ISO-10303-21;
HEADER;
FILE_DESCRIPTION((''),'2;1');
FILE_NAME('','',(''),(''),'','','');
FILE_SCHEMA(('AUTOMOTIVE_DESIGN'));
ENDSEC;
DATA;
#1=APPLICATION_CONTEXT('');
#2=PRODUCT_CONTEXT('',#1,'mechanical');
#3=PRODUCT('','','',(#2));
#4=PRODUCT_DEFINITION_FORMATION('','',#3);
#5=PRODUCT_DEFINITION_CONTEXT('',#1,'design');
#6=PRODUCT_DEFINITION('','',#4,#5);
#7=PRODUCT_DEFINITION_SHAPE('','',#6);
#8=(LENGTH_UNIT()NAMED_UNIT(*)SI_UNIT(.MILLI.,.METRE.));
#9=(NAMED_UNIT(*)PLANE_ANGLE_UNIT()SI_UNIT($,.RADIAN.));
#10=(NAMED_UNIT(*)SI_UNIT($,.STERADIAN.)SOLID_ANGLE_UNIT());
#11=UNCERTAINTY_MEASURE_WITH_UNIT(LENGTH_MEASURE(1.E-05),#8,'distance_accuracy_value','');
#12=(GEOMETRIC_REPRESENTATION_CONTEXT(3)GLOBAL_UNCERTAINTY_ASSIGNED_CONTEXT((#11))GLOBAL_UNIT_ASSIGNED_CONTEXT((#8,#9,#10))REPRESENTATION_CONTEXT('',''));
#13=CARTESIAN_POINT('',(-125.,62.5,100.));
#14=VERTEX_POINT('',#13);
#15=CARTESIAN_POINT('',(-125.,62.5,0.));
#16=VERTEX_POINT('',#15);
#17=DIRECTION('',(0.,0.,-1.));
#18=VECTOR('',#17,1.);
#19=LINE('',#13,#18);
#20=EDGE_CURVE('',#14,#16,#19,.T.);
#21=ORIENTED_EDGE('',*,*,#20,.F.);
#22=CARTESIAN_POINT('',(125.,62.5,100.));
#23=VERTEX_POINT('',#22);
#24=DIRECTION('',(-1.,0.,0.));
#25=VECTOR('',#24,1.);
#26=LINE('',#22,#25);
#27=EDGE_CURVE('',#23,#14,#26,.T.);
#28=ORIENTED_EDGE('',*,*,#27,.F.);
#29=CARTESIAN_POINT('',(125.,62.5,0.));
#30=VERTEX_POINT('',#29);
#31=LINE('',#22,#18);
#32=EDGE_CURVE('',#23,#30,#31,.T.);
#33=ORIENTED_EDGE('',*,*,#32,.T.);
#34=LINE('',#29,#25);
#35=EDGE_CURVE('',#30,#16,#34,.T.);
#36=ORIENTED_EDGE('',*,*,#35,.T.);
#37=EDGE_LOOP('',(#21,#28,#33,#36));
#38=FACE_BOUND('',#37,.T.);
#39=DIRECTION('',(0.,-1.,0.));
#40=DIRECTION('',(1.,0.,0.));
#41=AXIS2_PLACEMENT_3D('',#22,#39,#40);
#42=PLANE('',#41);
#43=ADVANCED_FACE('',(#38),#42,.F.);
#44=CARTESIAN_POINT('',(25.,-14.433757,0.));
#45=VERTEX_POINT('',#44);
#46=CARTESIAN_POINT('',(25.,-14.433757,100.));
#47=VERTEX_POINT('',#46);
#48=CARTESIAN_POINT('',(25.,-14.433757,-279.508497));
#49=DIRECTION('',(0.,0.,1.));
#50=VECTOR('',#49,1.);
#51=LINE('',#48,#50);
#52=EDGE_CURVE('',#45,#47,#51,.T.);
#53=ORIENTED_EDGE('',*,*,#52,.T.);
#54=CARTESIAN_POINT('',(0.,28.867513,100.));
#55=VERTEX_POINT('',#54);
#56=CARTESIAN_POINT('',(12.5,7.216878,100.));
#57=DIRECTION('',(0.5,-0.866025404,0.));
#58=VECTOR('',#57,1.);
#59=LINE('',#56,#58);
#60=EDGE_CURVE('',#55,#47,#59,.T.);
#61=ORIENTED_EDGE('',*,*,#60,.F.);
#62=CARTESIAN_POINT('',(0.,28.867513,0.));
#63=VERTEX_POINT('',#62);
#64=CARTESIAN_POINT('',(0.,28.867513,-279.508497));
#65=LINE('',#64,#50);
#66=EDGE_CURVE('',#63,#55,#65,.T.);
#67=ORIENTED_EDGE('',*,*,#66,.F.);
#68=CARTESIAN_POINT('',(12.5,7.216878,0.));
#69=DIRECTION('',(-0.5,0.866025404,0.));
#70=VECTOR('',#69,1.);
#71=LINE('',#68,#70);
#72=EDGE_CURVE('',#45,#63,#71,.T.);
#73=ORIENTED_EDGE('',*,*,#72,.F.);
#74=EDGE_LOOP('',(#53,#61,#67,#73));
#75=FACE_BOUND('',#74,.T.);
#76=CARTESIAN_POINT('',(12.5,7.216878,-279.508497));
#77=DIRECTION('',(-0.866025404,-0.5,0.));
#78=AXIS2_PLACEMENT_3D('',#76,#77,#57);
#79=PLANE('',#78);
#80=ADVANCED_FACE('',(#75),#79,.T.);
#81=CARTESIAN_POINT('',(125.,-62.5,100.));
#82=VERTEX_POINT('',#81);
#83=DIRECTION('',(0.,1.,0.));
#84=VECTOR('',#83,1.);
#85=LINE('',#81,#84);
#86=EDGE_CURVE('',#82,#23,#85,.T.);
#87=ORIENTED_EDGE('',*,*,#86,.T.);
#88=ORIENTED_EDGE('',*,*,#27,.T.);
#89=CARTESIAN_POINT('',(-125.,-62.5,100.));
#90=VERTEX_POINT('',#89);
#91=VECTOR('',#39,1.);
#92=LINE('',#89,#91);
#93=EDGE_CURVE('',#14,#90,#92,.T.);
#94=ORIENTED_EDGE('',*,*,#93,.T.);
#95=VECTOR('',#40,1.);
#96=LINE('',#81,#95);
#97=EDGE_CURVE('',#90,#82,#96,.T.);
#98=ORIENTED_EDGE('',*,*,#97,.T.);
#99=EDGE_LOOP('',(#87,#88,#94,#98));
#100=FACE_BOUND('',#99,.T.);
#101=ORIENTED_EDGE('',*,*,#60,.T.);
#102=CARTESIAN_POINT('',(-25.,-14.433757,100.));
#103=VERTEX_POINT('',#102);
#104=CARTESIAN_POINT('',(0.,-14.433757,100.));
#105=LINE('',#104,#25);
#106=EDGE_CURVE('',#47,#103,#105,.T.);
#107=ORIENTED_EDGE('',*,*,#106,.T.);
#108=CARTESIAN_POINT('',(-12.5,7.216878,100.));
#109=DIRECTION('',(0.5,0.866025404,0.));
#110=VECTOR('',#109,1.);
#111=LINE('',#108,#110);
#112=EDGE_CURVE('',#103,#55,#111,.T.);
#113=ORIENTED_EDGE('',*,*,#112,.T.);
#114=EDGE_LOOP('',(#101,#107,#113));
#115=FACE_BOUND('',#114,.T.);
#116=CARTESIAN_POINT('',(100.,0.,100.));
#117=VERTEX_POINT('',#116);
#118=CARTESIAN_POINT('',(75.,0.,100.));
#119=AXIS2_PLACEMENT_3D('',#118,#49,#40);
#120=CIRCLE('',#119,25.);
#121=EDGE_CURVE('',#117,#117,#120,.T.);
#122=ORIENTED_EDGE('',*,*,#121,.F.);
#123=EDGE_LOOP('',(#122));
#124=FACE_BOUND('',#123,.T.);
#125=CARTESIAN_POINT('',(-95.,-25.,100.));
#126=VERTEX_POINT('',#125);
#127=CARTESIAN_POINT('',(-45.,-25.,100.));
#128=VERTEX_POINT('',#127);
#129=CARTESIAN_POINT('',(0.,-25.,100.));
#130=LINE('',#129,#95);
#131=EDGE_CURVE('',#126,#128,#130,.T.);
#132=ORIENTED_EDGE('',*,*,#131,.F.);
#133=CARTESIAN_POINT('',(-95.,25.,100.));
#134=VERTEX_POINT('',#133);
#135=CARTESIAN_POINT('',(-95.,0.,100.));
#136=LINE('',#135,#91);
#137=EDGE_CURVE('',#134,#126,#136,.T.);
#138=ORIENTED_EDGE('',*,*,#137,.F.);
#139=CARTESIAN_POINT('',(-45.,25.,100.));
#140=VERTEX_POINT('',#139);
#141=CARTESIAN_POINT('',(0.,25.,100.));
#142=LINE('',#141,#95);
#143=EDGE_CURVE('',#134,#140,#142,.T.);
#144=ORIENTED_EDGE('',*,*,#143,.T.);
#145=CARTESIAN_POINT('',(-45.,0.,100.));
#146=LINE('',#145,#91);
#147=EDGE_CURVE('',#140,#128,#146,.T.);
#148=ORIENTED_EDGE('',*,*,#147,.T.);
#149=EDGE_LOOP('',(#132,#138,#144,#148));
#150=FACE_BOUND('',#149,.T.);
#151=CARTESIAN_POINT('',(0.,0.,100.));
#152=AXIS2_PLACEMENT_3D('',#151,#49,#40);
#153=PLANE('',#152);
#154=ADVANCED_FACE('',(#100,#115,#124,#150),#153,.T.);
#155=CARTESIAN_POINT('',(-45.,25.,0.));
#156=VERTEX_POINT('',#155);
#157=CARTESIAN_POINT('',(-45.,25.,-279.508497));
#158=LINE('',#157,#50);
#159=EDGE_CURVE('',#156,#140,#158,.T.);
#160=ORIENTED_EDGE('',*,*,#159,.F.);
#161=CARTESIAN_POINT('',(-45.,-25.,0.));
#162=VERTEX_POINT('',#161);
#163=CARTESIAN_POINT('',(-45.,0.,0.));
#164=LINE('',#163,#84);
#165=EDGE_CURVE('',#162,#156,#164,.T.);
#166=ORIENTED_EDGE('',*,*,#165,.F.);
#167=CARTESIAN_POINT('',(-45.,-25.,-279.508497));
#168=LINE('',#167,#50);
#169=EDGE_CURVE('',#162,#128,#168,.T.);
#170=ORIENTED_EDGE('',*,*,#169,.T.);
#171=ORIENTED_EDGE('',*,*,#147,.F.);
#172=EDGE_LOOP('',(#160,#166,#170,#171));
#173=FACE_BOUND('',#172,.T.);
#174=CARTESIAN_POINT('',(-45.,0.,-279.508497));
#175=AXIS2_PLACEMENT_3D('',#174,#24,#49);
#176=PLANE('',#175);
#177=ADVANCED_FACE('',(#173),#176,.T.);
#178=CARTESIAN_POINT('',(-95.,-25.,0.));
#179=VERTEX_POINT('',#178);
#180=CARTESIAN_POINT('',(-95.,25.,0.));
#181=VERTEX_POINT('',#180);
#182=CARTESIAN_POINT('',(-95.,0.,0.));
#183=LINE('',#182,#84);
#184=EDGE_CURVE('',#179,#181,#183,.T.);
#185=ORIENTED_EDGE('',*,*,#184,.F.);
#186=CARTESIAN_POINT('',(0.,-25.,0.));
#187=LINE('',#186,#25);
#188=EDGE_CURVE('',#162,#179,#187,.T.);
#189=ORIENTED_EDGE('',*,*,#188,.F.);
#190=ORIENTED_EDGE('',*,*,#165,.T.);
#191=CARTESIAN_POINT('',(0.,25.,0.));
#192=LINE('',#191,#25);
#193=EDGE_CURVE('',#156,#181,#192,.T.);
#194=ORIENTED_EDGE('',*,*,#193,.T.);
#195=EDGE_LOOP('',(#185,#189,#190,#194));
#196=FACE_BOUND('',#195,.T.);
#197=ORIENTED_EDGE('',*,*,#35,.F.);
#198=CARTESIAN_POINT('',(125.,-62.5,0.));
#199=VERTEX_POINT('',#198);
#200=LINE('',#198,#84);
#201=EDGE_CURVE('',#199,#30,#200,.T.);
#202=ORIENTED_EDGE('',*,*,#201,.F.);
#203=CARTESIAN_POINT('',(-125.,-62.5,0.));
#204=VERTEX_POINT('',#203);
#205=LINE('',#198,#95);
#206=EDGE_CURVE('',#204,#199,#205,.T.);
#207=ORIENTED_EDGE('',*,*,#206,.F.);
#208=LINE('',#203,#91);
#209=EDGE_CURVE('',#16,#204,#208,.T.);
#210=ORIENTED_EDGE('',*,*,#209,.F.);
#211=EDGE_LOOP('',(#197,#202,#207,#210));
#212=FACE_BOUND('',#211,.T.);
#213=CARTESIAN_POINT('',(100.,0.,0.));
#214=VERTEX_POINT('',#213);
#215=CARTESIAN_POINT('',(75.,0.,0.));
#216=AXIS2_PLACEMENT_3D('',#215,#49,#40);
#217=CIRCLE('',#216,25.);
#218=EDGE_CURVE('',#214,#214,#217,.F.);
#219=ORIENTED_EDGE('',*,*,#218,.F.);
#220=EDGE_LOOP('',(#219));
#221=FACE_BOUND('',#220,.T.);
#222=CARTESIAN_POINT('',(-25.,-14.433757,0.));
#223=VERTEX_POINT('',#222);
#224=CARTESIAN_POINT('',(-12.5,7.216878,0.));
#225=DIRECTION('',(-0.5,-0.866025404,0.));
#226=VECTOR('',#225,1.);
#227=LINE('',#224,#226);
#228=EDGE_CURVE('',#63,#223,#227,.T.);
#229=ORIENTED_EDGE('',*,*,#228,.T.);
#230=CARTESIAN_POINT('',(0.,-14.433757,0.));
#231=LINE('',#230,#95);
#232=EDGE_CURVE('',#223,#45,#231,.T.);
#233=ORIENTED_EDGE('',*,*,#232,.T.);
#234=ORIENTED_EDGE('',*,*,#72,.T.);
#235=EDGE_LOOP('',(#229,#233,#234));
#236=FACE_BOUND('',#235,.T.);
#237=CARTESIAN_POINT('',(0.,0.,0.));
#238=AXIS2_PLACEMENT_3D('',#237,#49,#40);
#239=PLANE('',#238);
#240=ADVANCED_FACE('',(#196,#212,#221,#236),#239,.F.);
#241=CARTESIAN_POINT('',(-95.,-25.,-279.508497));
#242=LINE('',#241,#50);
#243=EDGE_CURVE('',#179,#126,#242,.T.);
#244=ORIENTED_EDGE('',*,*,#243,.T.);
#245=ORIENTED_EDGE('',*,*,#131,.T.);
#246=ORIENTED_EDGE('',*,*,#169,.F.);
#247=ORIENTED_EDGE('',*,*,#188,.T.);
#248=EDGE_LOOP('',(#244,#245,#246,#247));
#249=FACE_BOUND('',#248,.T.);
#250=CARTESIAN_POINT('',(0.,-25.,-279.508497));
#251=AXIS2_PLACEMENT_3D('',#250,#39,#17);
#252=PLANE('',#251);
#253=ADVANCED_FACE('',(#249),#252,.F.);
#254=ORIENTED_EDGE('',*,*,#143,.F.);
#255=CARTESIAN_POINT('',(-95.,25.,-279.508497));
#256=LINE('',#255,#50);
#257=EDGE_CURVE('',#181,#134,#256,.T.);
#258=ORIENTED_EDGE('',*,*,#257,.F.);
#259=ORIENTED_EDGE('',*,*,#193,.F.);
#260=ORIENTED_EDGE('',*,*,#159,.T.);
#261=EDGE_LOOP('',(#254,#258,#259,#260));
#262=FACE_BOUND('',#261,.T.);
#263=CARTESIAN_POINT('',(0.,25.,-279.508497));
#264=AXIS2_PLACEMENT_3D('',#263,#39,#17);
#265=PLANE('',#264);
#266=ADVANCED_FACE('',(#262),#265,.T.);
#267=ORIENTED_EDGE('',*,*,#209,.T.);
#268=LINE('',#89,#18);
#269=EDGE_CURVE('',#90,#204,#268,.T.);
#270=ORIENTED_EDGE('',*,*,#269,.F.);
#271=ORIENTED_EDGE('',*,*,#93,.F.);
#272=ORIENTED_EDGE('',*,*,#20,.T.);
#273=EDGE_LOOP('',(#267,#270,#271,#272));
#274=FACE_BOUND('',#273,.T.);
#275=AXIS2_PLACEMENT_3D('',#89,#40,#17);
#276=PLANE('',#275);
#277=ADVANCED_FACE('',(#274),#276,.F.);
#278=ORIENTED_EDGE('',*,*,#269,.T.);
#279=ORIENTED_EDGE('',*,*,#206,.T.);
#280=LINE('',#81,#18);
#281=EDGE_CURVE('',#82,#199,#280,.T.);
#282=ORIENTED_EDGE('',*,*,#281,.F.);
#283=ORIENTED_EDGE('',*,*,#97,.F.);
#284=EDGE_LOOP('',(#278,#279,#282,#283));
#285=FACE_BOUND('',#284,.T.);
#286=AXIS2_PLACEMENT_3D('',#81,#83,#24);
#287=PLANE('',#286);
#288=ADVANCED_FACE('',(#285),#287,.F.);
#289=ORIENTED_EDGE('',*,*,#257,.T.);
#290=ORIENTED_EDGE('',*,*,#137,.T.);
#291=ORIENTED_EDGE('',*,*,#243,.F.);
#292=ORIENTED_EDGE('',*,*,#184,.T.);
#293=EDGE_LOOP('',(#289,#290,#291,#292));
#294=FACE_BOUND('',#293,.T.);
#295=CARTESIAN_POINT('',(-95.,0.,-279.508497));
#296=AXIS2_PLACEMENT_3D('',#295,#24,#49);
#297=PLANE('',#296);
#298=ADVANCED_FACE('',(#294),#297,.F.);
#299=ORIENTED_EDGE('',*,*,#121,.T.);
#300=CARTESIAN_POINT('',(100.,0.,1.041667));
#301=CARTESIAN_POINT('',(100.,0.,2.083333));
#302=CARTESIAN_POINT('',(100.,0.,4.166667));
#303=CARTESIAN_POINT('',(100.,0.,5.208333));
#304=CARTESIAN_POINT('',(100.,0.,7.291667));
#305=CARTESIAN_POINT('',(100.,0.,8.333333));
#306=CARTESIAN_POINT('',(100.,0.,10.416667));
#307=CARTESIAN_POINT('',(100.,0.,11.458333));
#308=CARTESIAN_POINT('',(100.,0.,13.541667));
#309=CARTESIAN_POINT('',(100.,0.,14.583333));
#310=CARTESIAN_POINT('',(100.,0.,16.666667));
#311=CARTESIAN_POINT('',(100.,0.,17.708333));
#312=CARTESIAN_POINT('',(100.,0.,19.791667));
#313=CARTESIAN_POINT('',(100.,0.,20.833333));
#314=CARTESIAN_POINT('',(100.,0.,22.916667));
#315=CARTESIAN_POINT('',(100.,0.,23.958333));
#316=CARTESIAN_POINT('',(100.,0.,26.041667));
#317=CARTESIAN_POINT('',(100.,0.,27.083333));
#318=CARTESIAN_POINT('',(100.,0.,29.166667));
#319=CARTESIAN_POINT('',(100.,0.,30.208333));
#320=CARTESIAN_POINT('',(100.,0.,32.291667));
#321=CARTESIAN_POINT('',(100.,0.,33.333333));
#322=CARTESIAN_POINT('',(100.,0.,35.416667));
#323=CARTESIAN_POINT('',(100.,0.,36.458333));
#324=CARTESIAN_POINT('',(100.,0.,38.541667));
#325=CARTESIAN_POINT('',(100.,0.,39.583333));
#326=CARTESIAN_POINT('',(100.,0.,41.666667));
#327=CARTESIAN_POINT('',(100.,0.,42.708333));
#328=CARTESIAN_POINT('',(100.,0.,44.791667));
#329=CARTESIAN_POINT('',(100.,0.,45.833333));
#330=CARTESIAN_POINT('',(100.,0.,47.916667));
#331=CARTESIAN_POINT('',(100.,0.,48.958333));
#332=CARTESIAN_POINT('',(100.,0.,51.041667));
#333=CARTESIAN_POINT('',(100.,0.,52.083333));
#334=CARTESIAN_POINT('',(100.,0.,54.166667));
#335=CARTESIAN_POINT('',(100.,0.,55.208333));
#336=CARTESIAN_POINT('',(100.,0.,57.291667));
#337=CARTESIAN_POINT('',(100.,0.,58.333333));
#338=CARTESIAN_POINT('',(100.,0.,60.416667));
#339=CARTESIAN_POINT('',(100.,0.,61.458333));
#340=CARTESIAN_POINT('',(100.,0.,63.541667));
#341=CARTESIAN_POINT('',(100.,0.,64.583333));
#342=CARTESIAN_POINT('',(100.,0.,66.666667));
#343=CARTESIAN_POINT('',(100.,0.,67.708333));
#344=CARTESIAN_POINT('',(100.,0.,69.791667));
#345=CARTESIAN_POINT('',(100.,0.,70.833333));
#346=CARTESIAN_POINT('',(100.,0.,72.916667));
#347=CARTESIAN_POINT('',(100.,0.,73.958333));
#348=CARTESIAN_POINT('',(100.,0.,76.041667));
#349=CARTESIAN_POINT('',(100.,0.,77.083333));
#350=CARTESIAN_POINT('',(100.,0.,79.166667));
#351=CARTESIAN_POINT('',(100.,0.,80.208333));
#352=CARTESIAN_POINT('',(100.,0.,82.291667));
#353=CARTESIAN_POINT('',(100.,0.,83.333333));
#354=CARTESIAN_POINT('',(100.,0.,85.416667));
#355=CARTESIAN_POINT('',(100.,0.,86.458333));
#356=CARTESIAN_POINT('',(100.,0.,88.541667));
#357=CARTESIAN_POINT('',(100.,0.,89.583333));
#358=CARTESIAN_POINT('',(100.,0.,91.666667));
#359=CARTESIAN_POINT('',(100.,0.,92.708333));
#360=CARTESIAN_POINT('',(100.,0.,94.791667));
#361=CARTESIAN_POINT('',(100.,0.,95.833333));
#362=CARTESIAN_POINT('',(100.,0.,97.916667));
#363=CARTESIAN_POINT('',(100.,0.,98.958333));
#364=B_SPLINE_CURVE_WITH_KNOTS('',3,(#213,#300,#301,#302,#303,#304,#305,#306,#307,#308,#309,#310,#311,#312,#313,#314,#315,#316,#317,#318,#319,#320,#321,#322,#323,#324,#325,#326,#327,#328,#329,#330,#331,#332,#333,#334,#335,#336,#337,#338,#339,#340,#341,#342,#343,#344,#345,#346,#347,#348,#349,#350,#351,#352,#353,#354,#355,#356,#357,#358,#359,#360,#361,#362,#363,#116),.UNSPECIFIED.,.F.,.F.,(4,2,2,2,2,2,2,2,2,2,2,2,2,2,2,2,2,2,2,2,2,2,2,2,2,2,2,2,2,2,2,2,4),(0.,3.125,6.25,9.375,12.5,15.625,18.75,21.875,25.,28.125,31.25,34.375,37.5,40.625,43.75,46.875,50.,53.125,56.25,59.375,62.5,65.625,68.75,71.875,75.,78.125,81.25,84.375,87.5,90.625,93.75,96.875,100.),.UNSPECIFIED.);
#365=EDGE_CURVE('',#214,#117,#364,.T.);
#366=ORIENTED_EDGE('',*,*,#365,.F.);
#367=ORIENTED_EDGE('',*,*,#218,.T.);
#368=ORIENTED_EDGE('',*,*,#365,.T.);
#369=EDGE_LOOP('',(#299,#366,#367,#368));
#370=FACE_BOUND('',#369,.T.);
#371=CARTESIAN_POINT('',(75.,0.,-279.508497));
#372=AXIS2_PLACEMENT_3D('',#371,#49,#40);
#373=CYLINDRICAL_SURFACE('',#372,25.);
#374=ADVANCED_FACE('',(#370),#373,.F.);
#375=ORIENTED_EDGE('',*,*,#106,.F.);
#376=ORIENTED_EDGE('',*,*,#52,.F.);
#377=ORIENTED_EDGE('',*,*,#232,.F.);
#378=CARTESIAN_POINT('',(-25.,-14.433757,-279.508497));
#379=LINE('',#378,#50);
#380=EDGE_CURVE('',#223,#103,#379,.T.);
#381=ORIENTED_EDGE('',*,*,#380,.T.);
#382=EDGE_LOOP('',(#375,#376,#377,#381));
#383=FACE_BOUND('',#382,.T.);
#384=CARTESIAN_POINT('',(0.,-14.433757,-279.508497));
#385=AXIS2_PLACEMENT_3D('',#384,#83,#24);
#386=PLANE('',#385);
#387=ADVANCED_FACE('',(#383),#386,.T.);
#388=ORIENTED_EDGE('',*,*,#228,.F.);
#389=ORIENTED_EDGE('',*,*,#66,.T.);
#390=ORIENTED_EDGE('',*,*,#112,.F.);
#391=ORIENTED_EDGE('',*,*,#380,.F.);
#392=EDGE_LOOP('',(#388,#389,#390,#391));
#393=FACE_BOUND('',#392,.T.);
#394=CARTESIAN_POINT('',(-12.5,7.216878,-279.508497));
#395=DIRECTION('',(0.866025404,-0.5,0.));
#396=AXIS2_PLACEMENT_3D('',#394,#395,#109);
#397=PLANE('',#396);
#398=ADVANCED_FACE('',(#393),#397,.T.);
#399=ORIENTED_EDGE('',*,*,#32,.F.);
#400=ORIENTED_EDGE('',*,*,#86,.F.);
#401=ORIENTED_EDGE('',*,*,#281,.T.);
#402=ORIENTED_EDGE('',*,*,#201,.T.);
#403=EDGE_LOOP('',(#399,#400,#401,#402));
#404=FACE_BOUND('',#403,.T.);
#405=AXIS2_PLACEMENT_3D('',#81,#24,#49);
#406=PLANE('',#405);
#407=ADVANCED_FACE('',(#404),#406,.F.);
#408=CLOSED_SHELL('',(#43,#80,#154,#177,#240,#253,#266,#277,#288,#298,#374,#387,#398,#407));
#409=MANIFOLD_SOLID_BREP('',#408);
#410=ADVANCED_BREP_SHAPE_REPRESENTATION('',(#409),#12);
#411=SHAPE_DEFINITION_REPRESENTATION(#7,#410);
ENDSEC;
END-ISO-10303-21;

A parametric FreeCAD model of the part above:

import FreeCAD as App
import Part
import Sketcher
from FreeCAD import Vector
Q = App.Units.Quantity


def add_polygon(sketch, points):
    """Adds a closed chain of lines whose ends are joined by coincident constraints."""
    first, n = sketch.GeometryCount, len(points)
    for a, b in zip(points, points[1:] + points[:1]):
        sketch.addGeometry(Part.LineSegment(App.Vector(*a, 0), App.Vector(*b, 0)), False)
    for i in range(n):
        sketch.addConstraint(Sketcher.Constraint("Coincident", first + i, 2, first + (i + 1) % n, 1))

doc = App.newDocument("Part")
params = doc.addObject("Spreadsheet::Sheet", "Params")
for row, (alias, value) in enumerate([
    ("sketch1_width", "250 mm"),
    ("sketch1_width2", "230 mm"),
    ("sketch1_height", "125 mm"),
    ("sketch1_height2", "115 mm"),
    ("pad1_length", "100 mm"),
    ("sketch2_diameter", "50 mm"),
    ("sketch2_width", "250 mm"),
    ("sketch2_width2", "50 mm"),
    ("sketch2_height", "125 mm"),
    ("pad2_length", "100 mm"),
], start=1):
    params.set(f"A{row}", alias)
    params.set(f"B{row}", "=" + value)
    params.setAlias(f"B{row}", alias)

body = doc.addObject("PartDesign::Body", "Body")

# Sketch on XY plane
sketch1 = body.newObject("Sketcher::SketchObject", "Sketch")
sketch1.AttachmentSupport = (doc.getObject("XY_Plane"), [""])
sketch1.MapMode = "FlatFace"
add_polygon(sketch1, [(-125, 62), (-125, -62), (125, -62), (125, 62)])  # lines 0-3
add_polygon(sketch1, [(115, -58), (-115, -58), (-115, 58), (115, 58)])  # lines 4-7
sketch1.addConstraint([
    Sketcher.Constraint("Vertical", 0),
    Sketcher.Constraint("Horizontal", 1),
    Sketcher.Constraint("Vertical", 2),
    Sketcher.Constraint("Horizontal", 3),
    Sketcher.Constraint("Horizontal", 4),
    Sketcher.Constraint("Vertical", 5),
    Sketcher.Constraint("Horizontal", 6),
    Sketcher.Constraint("Vertical", 7),
    Sketcher.Constraint("Symmetric", 0, 2, 2, 2, -1, 1),
    Sketcher.Constraint("Symmetric", 4, 2, 6, 2, -1, 1),
    Sketcher.Constraint("DistanceX", 1, 1, 1, 2, 250.0),
    Sketcher.Constraint("DistanceX", 4, 2, 4, 1, 230.0),
    Sketcher.Constraint("DistanceY", 0, 2, 0, 1, 125.0),
    Sketcher.Constraint("DistanceY", 5, 1, 5, 2, 115.0),
])
sketch1.setExpression("Constraints[18]", "Params.sketch1_width")
sketch1.setExpression("Constraints[19]", "Params.sketch1_width2")
sketch1.setExpression("Constraints[20]", "Params.sketch1_height")
sketch1.setExpression("Constraints[21]", "Params.sketch1_height2")
pad1 = body.newObject("PartDesign::Pad", "Pad")
pad1.Profile = sketch1
pad1.setExpression("Length", "Params.pad1_length")

# Sketch on XY plane
sketch2 = body.newObject("Sketcher::SketchObject", "Sketch001")
sketch2.AttachmentSupport = (doc.getObject("XY_Plane"), [""])
sketch2.MapMode = "FlatFace"
sketch2.AttachmentOffset = App.Placement(Vector(0, 0, 100), App.Rotation())
add_polygon(sketch2, [(-125, 62), (-125, -62), (125, -62), (125, 62)])  # lines 0-3
sketch2.addGeometry(Part.Circle(Vector(75, 0, 0), Vector(0, 0, 1), 25), False)  # 4
add_polygon(sketch2, [(0, 29), (25, -14), (-25, -14)])  # lines 5-7
add_polygon(sketch2, [(-45, -25), (-95, -25), (-95, 25), (-45, 25)])  # lines 8-11
sketch2.addConstraint([
    Sketcher.Constraint("Vertical", 0),
    Sketcher.Constraint("Horizontal", 1),
    Sketcher.Constraint("Vertical", 2),
    Sketcher.Constraint("Horizontal", 3),
    Sketcher.Constraint("Horizontal", 6),
    Sketcher.Constraint("Horizontal", 8),
    Sketcher.Constraint("Vertical", 9),
    Sketcher.Constraint("Horizontal", 10),
    Sketcher.Constraint("Vertical", 11),
    Sketcher.Constraint("Symmetric", 0, 2, 2, 2, -1, 1),
    Sketcher.Constraint("PointOnObject", 4, 3, -1),
    Sketcher.Constraint("PointOnObject", 7, 2, -2),
    Sketcher.Constraint("Equal", 6, 8),
    Sketcher.Constraint("Equal", 10, 9),
    Sketcher.Constraint("Equal", 5, 7),
    Sketcher.Constraint("Diameter", 4, 50.0),
    Sketcher.Constraint("DistanceX", 1, 1, 1, 2, 250.0),
    Sketcher.Constraint("DistanceX", 6, 2, 6, 1, 50.0),
    Sketcher.Constraint("DistanceY", 0, 2, 0, 1, 125.0),
    Sketcher.Constraint("Angle", 5, Q("-60 deg")),
    Sketcher.Constraint("DistanceX", -1, 1, 4, 3, 75.0),
    Sketcher.Constraint("DistanceX", 8, 2, -1, 1, 95.0),
    Sketcher.Constraint("DistanceY", 8, 2, -1, 1, 25.0),
    Sketcher.Constraint("DistanceY", 5, 2, -1, 1, 14.433757),
])
sketch2.setExpression("Constraints[26]", "Params.sketch2_diameter")
sketch2.setExpression("Constraints[27]", "Params.sketch2_width")
sketch2.setExpression("Constraints[28]", "Params.sketch2_width2")
sketch2.setExpression("Constraints[29]", "Params.sketch2_height")
pad2 = body.newObject("PartDesign::Pad", "Pad001")
pad2.Profile = sketch2
pad2.setExpression("Length", "Params.pad2_length")
pad2.Reversed = True

doc.recompute()
